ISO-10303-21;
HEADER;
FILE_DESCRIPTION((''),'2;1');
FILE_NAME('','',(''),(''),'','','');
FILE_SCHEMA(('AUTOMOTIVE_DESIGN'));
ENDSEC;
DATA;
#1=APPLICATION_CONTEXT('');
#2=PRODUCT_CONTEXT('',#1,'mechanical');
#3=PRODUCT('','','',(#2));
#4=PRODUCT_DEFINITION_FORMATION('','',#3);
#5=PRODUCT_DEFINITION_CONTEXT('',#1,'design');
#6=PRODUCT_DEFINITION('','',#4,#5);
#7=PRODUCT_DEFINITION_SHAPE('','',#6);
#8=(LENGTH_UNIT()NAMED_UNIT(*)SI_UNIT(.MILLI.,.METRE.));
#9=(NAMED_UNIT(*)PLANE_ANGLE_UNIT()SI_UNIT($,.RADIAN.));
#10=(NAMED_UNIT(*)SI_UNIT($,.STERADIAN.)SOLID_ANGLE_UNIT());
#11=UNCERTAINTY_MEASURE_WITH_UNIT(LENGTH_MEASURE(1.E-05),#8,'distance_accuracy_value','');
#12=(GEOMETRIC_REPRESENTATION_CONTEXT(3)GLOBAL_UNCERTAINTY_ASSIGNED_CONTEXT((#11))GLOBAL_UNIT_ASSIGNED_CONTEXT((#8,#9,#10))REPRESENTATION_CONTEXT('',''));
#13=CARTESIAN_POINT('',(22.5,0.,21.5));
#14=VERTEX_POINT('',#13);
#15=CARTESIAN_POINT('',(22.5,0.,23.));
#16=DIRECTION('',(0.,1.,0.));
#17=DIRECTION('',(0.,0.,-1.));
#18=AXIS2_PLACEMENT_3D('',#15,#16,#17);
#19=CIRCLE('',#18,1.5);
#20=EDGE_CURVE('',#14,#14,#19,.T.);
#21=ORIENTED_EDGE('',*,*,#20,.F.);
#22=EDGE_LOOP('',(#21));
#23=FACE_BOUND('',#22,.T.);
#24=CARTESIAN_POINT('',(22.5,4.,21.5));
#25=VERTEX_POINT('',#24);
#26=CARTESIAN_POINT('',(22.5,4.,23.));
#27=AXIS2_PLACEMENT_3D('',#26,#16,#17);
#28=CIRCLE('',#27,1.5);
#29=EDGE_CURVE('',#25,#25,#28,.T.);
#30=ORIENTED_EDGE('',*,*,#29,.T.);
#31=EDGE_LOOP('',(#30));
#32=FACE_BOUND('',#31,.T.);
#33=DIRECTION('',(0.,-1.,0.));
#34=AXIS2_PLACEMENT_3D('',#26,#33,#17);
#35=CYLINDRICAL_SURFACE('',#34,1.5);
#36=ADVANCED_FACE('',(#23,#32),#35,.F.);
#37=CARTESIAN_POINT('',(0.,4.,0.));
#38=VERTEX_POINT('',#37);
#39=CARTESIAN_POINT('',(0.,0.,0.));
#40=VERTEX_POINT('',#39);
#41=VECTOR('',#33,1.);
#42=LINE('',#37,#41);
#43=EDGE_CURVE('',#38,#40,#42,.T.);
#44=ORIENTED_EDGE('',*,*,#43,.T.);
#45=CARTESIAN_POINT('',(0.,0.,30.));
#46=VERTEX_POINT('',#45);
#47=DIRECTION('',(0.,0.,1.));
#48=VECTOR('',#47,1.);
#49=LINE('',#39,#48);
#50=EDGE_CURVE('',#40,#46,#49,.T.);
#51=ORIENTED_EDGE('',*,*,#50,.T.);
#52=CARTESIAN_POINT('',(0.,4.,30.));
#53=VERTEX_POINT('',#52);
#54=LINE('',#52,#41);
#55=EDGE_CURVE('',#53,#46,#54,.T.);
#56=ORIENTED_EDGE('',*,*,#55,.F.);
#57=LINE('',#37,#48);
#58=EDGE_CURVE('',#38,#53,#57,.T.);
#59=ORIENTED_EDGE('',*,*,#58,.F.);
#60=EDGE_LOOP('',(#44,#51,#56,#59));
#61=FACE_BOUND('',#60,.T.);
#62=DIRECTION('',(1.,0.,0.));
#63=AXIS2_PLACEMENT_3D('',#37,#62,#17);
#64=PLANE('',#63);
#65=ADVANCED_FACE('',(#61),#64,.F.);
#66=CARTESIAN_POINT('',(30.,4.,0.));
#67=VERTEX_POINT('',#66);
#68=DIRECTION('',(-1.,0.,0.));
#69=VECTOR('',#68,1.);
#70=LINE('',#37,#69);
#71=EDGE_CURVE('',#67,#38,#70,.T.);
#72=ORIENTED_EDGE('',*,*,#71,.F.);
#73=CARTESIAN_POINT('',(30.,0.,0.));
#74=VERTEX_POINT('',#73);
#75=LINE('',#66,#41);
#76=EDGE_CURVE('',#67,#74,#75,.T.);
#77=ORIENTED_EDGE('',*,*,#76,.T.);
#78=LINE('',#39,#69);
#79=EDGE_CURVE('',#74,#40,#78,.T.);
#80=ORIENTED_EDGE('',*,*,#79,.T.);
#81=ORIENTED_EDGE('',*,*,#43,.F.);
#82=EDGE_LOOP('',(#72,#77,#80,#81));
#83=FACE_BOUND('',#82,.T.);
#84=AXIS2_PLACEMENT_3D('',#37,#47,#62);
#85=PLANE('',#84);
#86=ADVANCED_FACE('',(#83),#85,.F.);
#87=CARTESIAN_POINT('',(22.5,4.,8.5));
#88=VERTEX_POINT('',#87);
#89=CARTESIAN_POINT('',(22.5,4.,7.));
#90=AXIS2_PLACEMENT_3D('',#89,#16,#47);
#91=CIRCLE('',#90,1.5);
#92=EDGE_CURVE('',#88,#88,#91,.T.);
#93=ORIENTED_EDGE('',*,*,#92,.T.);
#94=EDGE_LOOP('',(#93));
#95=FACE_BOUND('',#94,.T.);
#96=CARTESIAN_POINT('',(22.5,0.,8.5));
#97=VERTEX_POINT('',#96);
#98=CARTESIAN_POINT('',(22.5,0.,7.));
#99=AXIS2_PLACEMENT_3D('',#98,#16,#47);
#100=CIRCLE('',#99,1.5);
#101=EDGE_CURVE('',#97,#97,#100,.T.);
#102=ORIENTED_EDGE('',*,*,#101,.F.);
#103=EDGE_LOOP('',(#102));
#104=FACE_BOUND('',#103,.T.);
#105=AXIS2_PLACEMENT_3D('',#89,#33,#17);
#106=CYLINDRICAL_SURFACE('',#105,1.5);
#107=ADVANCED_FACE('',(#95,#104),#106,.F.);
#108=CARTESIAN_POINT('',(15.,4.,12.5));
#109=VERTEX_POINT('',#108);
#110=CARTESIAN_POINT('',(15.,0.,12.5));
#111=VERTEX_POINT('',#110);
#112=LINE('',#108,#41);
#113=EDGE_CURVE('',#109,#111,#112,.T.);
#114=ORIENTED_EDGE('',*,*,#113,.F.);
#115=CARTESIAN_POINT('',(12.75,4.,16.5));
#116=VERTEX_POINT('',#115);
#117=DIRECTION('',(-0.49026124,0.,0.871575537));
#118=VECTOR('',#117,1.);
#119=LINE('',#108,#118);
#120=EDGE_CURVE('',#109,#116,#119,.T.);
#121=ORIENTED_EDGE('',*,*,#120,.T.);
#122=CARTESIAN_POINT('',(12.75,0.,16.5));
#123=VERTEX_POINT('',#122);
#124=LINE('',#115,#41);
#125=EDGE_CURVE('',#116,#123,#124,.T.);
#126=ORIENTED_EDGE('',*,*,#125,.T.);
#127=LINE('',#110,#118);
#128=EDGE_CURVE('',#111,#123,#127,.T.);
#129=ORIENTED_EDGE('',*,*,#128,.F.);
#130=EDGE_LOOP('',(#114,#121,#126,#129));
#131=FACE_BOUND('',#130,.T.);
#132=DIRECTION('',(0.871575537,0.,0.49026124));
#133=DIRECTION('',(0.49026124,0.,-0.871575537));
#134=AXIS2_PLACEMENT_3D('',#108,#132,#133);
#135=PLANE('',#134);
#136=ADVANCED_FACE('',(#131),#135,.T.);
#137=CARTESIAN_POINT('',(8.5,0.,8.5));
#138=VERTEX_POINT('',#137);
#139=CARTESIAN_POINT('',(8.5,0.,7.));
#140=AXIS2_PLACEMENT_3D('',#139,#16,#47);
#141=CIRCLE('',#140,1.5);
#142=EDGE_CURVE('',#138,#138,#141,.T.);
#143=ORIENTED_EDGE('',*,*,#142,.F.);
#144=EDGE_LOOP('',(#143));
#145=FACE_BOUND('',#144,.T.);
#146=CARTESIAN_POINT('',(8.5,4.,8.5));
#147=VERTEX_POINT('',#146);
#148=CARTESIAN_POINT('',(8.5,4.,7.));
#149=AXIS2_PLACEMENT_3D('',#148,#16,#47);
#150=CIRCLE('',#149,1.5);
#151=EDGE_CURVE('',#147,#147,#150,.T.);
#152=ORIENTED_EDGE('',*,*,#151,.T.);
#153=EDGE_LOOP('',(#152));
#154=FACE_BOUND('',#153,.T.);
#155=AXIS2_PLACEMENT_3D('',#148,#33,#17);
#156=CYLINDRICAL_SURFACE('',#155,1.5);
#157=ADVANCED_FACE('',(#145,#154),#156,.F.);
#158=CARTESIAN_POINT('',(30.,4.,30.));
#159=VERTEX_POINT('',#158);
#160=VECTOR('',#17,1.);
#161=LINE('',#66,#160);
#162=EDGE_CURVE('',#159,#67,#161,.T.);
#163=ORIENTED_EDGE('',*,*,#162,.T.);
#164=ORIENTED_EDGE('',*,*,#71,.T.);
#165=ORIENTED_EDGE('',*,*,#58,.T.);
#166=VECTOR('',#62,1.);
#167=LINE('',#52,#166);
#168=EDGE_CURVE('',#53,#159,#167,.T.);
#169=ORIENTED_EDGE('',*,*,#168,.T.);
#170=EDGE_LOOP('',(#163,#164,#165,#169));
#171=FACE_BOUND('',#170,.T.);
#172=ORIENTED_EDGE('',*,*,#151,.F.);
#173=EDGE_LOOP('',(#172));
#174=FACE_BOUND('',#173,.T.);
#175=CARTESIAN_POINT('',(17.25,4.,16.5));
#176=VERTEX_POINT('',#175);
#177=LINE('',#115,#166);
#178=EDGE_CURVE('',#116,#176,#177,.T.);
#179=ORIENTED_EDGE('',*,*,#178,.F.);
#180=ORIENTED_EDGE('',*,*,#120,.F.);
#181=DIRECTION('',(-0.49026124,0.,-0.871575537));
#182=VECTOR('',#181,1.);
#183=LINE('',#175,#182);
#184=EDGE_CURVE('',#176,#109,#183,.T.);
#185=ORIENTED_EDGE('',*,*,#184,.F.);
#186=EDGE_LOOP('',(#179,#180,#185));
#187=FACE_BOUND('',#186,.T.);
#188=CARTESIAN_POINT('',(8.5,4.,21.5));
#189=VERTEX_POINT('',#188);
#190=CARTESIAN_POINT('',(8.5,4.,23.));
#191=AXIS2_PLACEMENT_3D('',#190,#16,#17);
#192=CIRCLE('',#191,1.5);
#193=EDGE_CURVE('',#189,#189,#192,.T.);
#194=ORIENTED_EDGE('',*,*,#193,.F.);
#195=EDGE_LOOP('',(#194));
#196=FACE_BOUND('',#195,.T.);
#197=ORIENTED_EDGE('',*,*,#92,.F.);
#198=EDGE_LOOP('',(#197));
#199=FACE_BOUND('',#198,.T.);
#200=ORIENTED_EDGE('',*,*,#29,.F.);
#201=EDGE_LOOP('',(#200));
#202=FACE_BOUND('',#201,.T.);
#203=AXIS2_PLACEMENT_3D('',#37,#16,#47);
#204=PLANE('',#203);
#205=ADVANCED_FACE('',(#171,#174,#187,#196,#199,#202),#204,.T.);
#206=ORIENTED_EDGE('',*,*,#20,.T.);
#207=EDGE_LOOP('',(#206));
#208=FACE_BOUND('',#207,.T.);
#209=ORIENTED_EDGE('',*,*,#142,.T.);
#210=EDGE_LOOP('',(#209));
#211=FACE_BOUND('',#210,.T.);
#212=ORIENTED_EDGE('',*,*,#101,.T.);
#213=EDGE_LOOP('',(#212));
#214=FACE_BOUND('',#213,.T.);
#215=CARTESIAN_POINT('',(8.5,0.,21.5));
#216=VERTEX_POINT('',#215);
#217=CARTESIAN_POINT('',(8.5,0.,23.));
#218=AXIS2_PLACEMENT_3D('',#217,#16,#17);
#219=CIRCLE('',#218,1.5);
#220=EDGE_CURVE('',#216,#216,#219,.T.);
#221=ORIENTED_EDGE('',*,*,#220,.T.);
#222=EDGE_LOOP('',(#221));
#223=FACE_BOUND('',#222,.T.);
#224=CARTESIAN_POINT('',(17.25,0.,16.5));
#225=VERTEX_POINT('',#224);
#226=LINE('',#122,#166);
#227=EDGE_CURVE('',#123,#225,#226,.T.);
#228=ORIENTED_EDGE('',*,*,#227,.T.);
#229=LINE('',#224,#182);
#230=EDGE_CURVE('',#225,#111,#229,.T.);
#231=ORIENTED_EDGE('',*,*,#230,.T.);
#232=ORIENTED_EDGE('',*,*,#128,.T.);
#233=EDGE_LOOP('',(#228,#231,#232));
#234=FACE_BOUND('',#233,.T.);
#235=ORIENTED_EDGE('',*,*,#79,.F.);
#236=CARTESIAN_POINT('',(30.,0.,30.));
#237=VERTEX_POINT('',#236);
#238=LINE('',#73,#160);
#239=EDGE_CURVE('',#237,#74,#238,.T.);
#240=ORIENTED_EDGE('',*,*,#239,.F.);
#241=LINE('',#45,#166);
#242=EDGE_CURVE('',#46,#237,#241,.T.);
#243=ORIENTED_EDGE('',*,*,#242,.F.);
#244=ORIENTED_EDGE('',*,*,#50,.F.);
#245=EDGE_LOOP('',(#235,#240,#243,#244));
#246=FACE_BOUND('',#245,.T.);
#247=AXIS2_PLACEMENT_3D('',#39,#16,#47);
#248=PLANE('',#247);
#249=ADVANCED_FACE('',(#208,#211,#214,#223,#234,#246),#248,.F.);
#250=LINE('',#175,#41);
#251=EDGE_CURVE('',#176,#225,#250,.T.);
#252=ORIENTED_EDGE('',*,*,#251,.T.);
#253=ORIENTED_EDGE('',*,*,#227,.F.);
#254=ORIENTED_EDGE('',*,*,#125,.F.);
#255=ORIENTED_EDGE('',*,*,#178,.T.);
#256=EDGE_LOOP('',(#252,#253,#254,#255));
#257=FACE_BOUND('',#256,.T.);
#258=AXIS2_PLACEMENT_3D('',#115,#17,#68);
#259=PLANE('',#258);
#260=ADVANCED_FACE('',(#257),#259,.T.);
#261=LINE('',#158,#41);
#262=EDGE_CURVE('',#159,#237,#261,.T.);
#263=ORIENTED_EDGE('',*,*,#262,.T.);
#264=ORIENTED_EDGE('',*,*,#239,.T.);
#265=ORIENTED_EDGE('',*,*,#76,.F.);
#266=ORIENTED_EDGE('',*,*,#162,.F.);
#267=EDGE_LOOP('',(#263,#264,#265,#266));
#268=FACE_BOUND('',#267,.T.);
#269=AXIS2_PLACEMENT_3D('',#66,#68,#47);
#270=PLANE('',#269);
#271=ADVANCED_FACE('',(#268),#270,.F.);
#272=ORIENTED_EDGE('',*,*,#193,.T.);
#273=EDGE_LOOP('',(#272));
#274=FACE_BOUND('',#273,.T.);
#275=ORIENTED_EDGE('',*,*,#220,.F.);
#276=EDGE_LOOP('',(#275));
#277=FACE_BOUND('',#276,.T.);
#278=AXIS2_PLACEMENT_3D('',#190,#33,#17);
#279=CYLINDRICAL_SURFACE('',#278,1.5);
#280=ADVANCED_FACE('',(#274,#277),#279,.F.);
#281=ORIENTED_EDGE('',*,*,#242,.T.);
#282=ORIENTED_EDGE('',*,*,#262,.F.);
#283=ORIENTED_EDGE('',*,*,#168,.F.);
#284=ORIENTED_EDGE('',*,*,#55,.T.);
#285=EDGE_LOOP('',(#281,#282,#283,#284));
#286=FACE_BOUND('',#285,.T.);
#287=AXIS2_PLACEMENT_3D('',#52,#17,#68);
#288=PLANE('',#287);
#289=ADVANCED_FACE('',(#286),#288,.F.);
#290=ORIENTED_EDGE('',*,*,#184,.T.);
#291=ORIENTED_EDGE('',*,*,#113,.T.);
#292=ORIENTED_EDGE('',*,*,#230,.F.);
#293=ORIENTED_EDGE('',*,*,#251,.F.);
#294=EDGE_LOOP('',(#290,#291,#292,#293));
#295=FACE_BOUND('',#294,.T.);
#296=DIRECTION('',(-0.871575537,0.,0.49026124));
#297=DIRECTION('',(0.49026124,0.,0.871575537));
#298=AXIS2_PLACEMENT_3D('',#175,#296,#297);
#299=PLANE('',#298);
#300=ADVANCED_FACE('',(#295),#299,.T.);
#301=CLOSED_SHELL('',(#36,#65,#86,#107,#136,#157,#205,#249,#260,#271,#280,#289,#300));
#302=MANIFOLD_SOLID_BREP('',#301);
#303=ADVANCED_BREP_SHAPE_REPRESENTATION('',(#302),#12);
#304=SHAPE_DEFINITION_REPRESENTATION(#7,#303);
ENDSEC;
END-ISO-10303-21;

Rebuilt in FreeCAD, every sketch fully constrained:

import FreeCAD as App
import Part
import Sketcher
from FreeCAD import Vector

doc = App.newDocument("Part")
body = doc.addObject("PartDesign::Body", "Body")

# Sketch on XZ plane
sketch1 = body.newObject("Sketcher::SketchObject", "Sketch")
sketch1.AttachmentSupport = (doc.getObject("XZ_Plane"), [""])
sketch1.MapMode = "FlatFace"
sketch1.addGeometry(Part.LineSegment(Vector(0, 0, 0), Vector(0, 30, 0)), False)
sketch1.addGeometry(Part.LineSegment(Vector(0, 30, 0), Vector(30, 30, 0)), False)
sketch1.addGeometry(Part.LineSegment(Vector(30, 30, 0), Vector(30, 0, 0)), False)
sketch1.addGeometry(Part.LineSegment(Vector(30, 0, 0), Vector(0, 0, 0)), False)
sketch1.addGeometry(Part.Circle(Vector(8.5, 23, 0), Vector(0, 0, 1), 1.5), False)
sketch1.addGeometry(Part.Circle(Vector(22.5, 23, 0), Vector(0, 0, 1), 1.5), False)
sketch1.addGeometry(Part.LineSegment(Vector(12.75, 16.5, 0), Vector(15, 12.5, 0)), False)
sketch1.addGeometry(Part.LineSegment(Vector(15, 12.5, 0), Vector(17.25, 16.5, 0)), False)
sketch1.addGeometry(Part.LineSegment(Vector(17.25, 16.5, 0), Vector(12.75, 16.5, 0)), False)
sketch1.addGeometry(Part.Circle(Vector(8.5, 7, 0), Vector(0, 0, 1), 1.5), False)
sketch1.addGeometry(Part.Circle(Vector(22.5, 7, 0), Vector(0, 0, 1), 1.5), False)
sketch1.addConstraint(Sketcher.Constraint("Coincident", 0, 2, 1, 1))
sketch1.addConstraint(Sketcher.Constraint("Coincident", 1, 2, 2, 1))
sketch1.addConstraint(Sketcher.Constraint("Coincident", 2, 2, 3, 1))
sketch1.addConstraint(Sketcher.Constraint("Coincident", 3, 2, 0, 1))
sketch1.addConstraint(Sketcher.Constraint("Coincident", 6, 2, 7, 1))
sketch1.addConstraint(Sketcher.Constraint("Coincident", 7, 2, 8, 1))
sketch1.addConstraint(Sketcher.Constraint("Coincident", 8, 2, 6, 1))
sketch1.addConstraint(Sketcher.Constraint("Vertical", 0))
sketch1.addConstraint(Sketcher.Constraint("Horizontal", 1))
sketch1.addConstraint(Sketcher.Constraint("Vertical", 2))
sketch1.addConstraint(Sketcher.Constraint("Horizontal", 3))
sketch1.addConstraint(Sketcher.Constraint("Horizontal", 8))
sketch1.addConstraint(Sketcher.Constraint("Coincident", 3, 2, -1, 1))
sketch1.addConstraint(Sketcher.Constraint("Equal", 4, 5))
sketch1.addConstraint(Sketcher.Constraint("Equal", 5, 9))
sketch1.addConstraint(Sketcher.Constraint("Equal", 9, 10))
sketch1.addConstraint(Sketcher.Constraint("Horizontal", 4, 3, 5, 3))
sketch1.addConstraint(Sketcher.Constraint("Horizontal", 9, 3, 10, 3))
sketch1.addConstraint(Sketcher.Constraint("Vertical", 4, 3, 9, 3))
sketch1.addConstraint(Sketcher.Constraint("Vertical", 5, 3, 10, 3))
sketch1.addConstraint(Sketcher.Constraint("Equal", 3, 0))
sketch1.addConstraint(Sketcher.Constraint("Equal", 6, 7))
sketch1.addConstraint(Sketcher.Constraint("Diameter", 4, 3.0))
sketch1.addConstraint(Sketcher.Constraint("DistanceX", 1, 1, 1, 2, 30.0))
sketch1.addConstraint(Sketcher.Constraint("DistanceX", 8, 2, 8, 1, 4.5))
sketch1.addConstraint(Sketcher.Constraint("DistanceY", -1, 1, 4, 3, 23.0))
sketch1.addConstraint(Sketcher.Constraint("DistanceY", -1, 1, 9, 3, 7.0))
sketch1.addConstraint(Sketcher.Constraint("DistanceX", -1, 1, 6, 2, 15.0))
sketch1.addConstraint(Sketcher.Constraint("DistanceX", 4, 3, 5, 3, 14.0))
sketch1.addConstraint(Sketcher.Constraint("DistanceY", 6, 2, 7, 2, 4.0))
sketch1.addConstraint(Sketcher.Constraint("DistanceX", -1, 1, 4, 3, 8.5))
sketch1.addConstraint(Sketcher.Constraint("DistanceY", -1, 1, 6, 2, 12.5))
pad1 = body.newObject("PartDesign::Pad", "Pad")
pad1.Profile = sketch1
pad1.Length = 4
pad1.Reversed = True

doc.recompute()
